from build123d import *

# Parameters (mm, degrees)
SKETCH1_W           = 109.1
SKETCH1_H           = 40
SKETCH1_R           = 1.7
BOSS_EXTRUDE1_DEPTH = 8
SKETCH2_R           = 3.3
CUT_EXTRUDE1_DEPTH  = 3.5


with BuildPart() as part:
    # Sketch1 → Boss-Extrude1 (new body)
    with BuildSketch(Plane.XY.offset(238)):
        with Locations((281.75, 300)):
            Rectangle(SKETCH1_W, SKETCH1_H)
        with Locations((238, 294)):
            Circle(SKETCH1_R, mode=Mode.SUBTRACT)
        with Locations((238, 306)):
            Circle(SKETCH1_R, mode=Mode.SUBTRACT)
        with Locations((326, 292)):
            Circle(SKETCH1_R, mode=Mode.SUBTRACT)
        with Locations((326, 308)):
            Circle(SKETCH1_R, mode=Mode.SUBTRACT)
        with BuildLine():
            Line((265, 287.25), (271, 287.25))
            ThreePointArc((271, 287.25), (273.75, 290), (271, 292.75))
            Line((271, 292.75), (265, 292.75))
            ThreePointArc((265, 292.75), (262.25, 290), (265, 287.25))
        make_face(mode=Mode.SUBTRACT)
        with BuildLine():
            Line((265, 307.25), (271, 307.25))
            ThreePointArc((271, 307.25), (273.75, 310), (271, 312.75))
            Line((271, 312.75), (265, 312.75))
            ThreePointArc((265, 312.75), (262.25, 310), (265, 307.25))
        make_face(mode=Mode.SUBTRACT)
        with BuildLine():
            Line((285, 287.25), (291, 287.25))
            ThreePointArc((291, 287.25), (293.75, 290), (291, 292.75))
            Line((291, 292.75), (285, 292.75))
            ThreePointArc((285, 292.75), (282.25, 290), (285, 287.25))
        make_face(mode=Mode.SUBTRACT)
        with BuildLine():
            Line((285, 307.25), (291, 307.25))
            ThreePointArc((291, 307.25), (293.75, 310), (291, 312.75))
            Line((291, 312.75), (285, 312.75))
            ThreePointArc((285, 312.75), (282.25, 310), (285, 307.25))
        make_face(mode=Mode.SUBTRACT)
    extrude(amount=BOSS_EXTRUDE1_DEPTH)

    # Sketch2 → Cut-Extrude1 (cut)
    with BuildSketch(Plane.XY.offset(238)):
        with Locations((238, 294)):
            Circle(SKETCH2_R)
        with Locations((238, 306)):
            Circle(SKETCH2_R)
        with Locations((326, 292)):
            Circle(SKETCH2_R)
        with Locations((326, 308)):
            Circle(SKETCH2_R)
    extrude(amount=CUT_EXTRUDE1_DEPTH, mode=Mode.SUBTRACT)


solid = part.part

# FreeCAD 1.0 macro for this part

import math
import FreeCAD as App
import Part
import Sketcher

doc = App.newDocument("Part")
body = doc.addObject("PartDesign::Body", "Body")

sketch1 = doc.addObject("Sketcher::SketchObject", "Sketch")
body.addObject(sketch1)
sketch1.AttachmentSupport = (doc.XY_Plane, [""])
sketch1.MapMode = "FlatFace"
sketch1.AttachmentOffset = App.Placement(App.Vector(0, 0, 238), App.Rotation())
sketch1.addGeometry(Part.LineSegment(App.Vector(227.2, 320, 0), App.Vector(227.2, 280, 0)), False)
sketch1.addGeometry(Part.LineSegment(App.Vector(227.2, 280, 0), App.Vector(336.3, 280, 0)), False)
sketch1.addGeometry(Part.LineSegment(App.Vector(336.3, 280, 0), App.Vector(336.3, 320, 0)), False)
sketch1.addGeometry(Part.LineSegment(App.Vector(336.3, 320, 0), App.Vector(227.2, 320, 0)), False)
sketch1.addGeometry(Part.LineSegment(App.Vector(271, 287.2, 0), App.Vector(265, 287.2, 0)), False)
sketch1.addGeometry(Part.ArcOfCircle(Part.Circle(App.Vector(265, 290, 0), App.Vector(0, 0, 1), 2.8), math.radians(90), math.radians(270)), False)
sketch1.addGeometry(Part.LineSegment(App.Vector(265, 292.8, 0), App.Vector(271, 292.8, 0)), False)
sketch1.addGeometry(Part.ArcOfCircle(Part.Circle(App.Vector(271, 290, 0), App.Vector(0, 0, 1), 2.8), math.radians(-90), math.radians(90)), False)
sketch1.addGeometry(Part.Circle(App.Vector(238, 294, 0), App.Vector(0, 0, 1), 1.7), False)
sketch1.addGeometry(Part.LineSegment(App.Vector(291, 287.2, 0), App.Vector(285, 287.2, 0)), False)
sketch1.addGeometry(Part.ArcOfCircle(Part.Circle(App.Vector(285, 290, 0), App.Vector(0, 0, 1), 2.8), math.radians(90), math.radians(270)), False)
sketch1.addGeometry(Part.LineSegment(App.Vector(285, 292.8, 0), App.Vector(291, 292.8, 0)), False)
sketch1.addGeometry(Part.ArcOfCircle(Part.Circle(App.Vector(291, 290, 0), App.Vector(0, 0, 1), 2.8), math.radians(-90), math.radians(90)), False)
sketch1.addGeometry(Part.Circle(App.Vector(326, 292, 0), App.Vector(0, 0, 1), 1.7), False)
sketch1.addGeometry(Part.Circle(App.Vector(238, 306, 0), App.Vector(0, 0, 1), 1.7), False)
sketch1.addGeometry(Part.LineSegment(App.Vector(271, 307.2, 0), App.Vector(265, 307.2, 0)), False)
sketch1.addGeometry(Part.ArcOfCircle(Part.Circle(App.Vector(265, 310, 0), App.Vector(0, 0, 1), 2.8), math.radians(90), math.radians(270)), False)
sketch1.addGeometry(Part.LineSegment(App.Vector(265, 312.8, 0), App.Vector(271, 312.8, 0)), False)
sketch1.addGeometry(Part.ArcOfCircle(Part.Circle(App.Vector(271, 310, 0), App.Vector(0, 0, 1), 2.8), math.radians(-90), math.radians(90)), False)
sketch1.addGeometry(Part.LineSegment(App.Vector(291, 307.2, 0), App.Vector(285, 307.2, 0)), False)
sketch1.addGeometry(Part.ArcOfCircle(Part.Circle(App.Vector(285, 310, 0), App.Vector(0, 0, 1), 2.8), math.radians(90), math.radians(270)), False)
sketch1.addGeometry(Part.LineSegment(App.Vector(285, 312.8, 0), App.Vector(291, 312.8, 0)), False)
sketch1.addGeometry(Part.ArcOfCircle(Part.Circle(App.Vector(291, 310, 0), App.Vector(0, 0, 1), 2.8), math.radians(-90), math.radians(90)), False)
sketch1.addGeometry(Part.Circle(App.Vector(326, 308, 0), App.Vector(0, 0, 1), 1.7), False)
sketch1.addConstraint(Sketcher.Constraint("Coincident", 0, 2, 1, 1))
sketch1.addConstraint(Sketcher.Constraint("Coincident", 1, 2, 2, 1))
sketch1.addConstraint(Sketcher.Constraint("Coincident", 2, 2, 3, 1))
sketch1.addConstraint(Sketcher.Constraint("Coincident", 3, 2, 0, 1))
sketch1.addConstraint(Sketcher.Constraint("Tangent", 4, 2, 5, 2))
sketch1.addConstraint(Sketcher.Constraint("Tangent", 5, 1, 6, 1))
sketch1.addConstraint(Sketcher.Constraint("Tangent", 6, 2, 7, 2))
sketch1.addConstraint(Sketcher.Constraint("Tangent", 7, 1, 4, 1))
sketch1.addConstraint(Sketcher.Constraint("Tangent", 9, 2, 10, 2))
sketch1.addConstraint(Sketcher.Constraint("Tangent", 10, 1, 11, 1))
sketch1.addConstraint(Sketcher.Constraint("Tangent", 11, 2, 12, 2))
sketch1.addConstraint(Sketcher.Constraint("Tangent", 12, 1, 9, 1))
sketch1.addConstraint(Sketcher.Constraint("Tangent", 15, 2, 16, 2))
sketch1.addConstraint(Sketcher.Constraint("Tangent", 16, 1, 17, 1))
sketch1.addConstraint(Sketcher.Constraint("Tangent", 17, 2, 18, 2))
sketch1.addConstraint(Sketcher.Constraint("Tangent", 18, 1, 15, 1))
sketch1.addConstraint(Sketcher.Constraint("Tangent", 19, 2, 20, 2))
sketch1.addConstraint(Sketcher.Constraint("Tangent", 20, 1, 21, 1))
sketch1.addConstraint(Sketcher.Constraint("Tangent", 21, 2, 22, 2))
sketch1.addConstraint(Sketcher.Constraint("Tangent", 22, 1, 19, 1))
sketch1.addConstraint(Sketcher.Constraint("Vertical", 0))
sketch1.addConstraint(Sketcher.Constraint("Horizontal", 1))
sketch1.addConstraint(Sketcher.Constraint("Vertical", 2))
sketch1.addConstraint(Sketcher.Constraint("Horizontal", 3))
sketch1.addConstraint(Sketcher.Constraint("Horizontal", 4))
sketch1.addConstraint(Sketcher.Constraint("Horizontal", 6))
sketch1.addConstraint(Sketcher.Constraint("Horizontal", 9))
sketch1.addConstraint(Sketcher.Constraint("Horizontal", 11))
sketch1.addConstraint(Sketcher.Constraint("Horizontal", 15))
sketch1.addConstraint(Sketcher.Constraint("Horizontal", 17))
sketch1.addConstraint(Sketcher.Constraint("Horizontal", 19))
sketch1.addConstraint(Sketcher.Constraint("Horizontal", 21))
sketch1.addConstraint(Sketcher.Constraint("Equal", 7, 10))
sketch1.addConstraint(Sketcher.Constraint("Equal", 8, 13))
sketch1.addConstraint(Sketcher.Constraint("Equal", 13, 14))
sketch1.addConstraint(Sketcher.Constraint("Equal", 12, 16))
sketch1.addConstraint(Sketcher.Constraint("Equal", 18, 20))
sketch1.addConstraint(Sketcher.Constraint("Equal", 14, 23))
sketch1.addConstraint(Sketcher.Constraint("Horizontal", 7, 3, 10, 3))
sketch1.addConstraint(Sketcher.Constraint("Horizontal", 18, 3, 20, 3))
sketch1.addConstraint(Sketcher.Constraint("Vertical", 8, 3, 14, 3))
sketch1.addConstraint(Sketcher.Constraint("Vertical", 5, 3, 16, 3))
sketch1.addConstraint(Sketcher.Constraint("Vertical", 7, 3, 18, 3))
sketch1.addConstraint(Sketcher.Constraint("Vertical", 10, 3, 20, 3))
sketch1.addConstraint(Sketcher.Constraint("Vertical", 12, 3, 22, 3))
sketch1.addConstraint(Sketcher.Constraint("Vertical", 13, 3, 23, 3))
sketch1.addConstraint(Sketcher.Constraint("Equal", 6, 9))
sketch1.addConstraint(Sketcher.Constraint("Diameter", 8, 3.4))
sketch1.addConstraint(Sketcher.Constraint("DistanceX", 4, 2, 4, 1, 6.0))
sketch1.addConstraint(Sketcher.Constraint("DistanceY", 0, 2, 0, 1, 40.0))
sketch1.addConstraint(Sketcher.Constraint("Radius", 5, 2.75))
sketch1.addConstraint(Sketcher.Constraint("DistanceX", 1, 1, 1, 2, 109.1))
sketch1.addConstraint(Sketcher.Constraint("DistanceX", -1, 1, 5, 3, 265.0))
sketch1.addConstraint(Sketcher.Constraint("DistanceY", -1, 1, 5, 3, 290.0))
sketch1.addConstraint(Sketcher.Constraint("DistanceX", -1, 1, 8, 3, 238.0))
sketch1.addConstraint(Sketcher.Constraint("DistanceY", -1, 1, 8, 3, 294.0))
sketch1.addConstraint(Sketcher.Constraint("DistanceX", -1, 1, 10, 3, 285.0))
sketch1.addConstraint(Sketcher.Constraint("DistanceX", -1, 1, 13, 3, 326.0))
sketch1.addConstraint(Sketcher.Constraint("DistanceY", -1, 1, 13, 3, 292.0))
sketch1.addConstraint(Sketcher.Constraint("DistanceY", -1, 1, 14, 3, 306.0))
sketch1.addConstraint(Sketcher.Constraint("DistanceY", -1, 1, 16, 3, 310.0))
sketch1.addConstraint(Sketcher.Constraint("DistanceY", -1, 1, 23, 3, 308.0))
sketch1.addConstraint(Sketcher.Constraint("DistanceY", -1, 1, 0, 2, 280.0))
sketch1.addConstraint(Sketcher.Constraint("DistanceX", -1, 1, 0, 2, 227.2))
pad1 = doc.addObject("PartDesign::Pad", "Pad")
body.addObject(pad1)
pad1.Profile = sketch1
pad1.Length = 8

sketch2 = doc.addObject("Sketcher::SketchObject", "Sketch001")
body.addObject(sketch2)
sketch2.AttachmentSupport = (doc.XY_Plane, [""])
sketch2.MapMode = "FlatFace"
sketch2.AttachmentOffset = App.Placement(App.Vector(0, 0, 238), App.Rotation())
sketch2.addGeometry(Part.Circle(App.Vector(238, 294, 0), App.Vector(0, 0, 1), 3.3), False)
sketch2.addGeometry(Part.Circle(App.Vector(238, 306, 0), App.Vector(0, 0, 1), 3.3), False)
sketch2.addGeometry(Part.Circle(App.Vector(326, 292, 0), App.Vector(0, 0, 1), 3.3), False)
sketch2.addGeometry(Part.Circle(App.Vector(326, 308, 0), App.Vector(0, 0, 1), 3.3), False)
sketch2.addConstraint(Sketcher.Constraint("Equal", 0, 1))
sketch2.addConstraint(Sketcher.Constraint("Equal", 1, 2))
sketch2.addConstraint(Sketcher.Constraint("Equal", 2, 3))
sketch2.addConstraint(Sketcher.Constraint("Vertical", 0, 3, 1, 3))
sketch2.addConstraint(Sketcher.Constraint("Vertical", 2, 3, 3, 3))
sketch2.addConstraint(Sketcher.Constraint("Diameter", 0, 6.6))
sketch2.addConstraint(Sketcher.Constraint("DistanceX", -1, 1, 0, 3, 238.0))
sketch2.addConstraint(Sketcher.Constraint("DistanceY", -1, 1, 0, 3, 294.0))
sketch2.addConstraint(Sketcher.Constraint("DistanceY", -1, 1, 1, 3, 306.0))
sketch2.addConstraint(Sketcher.Constraint("DistanceX", -1, 1, 2, 3, 326.0))
sketch2.addConstraint(Sketcher.Constraint("DistanceY", -1, 1, 2, 3, 292.0))
sketch2.addConstraint(Sketcher.Constraint("DistanceY", -1, 1, 3, 3, 308.0))
pocket1 = doc.addObject("PartDesign::Pocket", "Pocket")
body.addObject(pocket1)
pocket1.Profile = sketch2
pocket1.Length = 3.5
pocket1.Reversed = True

doc.recompute()
